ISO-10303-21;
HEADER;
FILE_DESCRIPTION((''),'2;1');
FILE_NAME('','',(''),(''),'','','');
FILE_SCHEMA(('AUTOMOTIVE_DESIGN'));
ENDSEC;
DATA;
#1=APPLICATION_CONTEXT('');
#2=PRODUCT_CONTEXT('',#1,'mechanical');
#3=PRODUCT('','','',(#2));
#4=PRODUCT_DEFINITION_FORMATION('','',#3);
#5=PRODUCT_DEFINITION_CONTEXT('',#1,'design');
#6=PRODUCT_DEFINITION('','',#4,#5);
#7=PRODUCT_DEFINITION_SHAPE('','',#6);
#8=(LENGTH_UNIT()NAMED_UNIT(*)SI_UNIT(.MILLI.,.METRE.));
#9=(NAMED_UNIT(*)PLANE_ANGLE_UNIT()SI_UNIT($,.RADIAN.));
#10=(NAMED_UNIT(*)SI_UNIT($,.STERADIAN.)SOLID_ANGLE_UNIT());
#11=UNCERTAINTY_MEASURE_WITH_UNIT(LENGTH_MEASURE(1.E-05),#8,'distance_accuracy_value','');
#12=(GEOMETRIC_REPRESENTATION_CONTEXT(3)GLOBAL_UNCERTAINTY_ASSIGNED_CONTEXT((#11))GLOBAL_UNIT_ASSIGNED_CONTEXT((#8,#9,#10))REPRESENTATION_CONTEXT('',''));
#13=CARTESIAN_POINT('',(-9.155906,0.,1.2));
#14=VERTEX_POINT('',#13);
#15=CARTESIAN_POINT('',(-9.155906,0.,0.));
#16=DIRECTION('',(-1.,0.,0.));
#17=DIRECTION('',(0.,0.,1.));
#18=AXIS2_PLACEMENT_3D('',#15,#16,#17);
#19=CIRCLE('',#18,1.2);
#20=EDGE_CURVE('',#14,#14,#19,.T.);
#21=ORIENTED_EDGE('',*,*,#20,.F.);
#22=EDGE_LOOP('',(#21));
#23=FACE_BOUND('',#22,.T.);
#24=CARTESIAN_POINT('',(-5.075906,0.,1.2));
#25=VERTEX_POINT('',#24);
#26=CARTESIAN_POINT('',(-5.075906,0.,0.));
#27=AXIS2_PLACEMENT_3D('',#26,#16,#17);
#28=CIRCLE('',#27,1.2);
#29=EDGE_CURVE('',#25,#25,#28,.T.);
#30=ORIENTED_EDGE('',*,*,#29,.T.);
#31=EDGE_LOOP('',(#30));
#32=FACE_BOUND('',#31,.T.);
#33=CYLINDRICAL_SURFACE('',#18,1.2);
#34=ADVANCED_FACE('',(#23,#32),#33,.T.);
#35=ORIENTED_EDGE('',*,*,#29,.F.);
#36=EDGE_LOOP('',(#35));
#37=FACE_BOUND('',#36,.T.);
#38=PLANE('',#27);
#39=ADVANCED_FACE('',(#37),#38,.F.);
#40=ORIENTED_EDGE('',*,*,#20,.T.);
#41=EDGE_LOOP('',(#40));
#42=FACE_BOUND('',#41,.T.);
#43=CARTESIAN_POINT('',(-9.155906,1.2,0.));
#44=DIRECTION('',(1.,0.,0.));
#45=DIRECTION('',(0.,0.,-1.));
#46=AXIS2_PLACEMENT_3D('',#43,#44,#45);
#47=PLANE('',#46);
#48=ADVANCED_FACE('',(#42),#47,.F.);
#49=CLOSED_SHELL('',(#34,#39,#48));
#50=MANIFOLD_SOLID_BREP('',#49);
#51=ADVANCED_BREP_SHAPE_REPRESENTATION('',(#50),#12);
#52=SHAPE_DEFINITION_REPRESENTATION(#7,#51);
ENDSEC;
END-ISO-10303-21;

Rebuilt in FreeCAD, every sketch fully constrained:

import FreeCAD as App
import Part
import Sketcher

V = App.Vector

doc = App.newDocument("Part")
body = doc.addObject("PartDesign::Body", "Body")

sketch1 = body.newObject("Sketcher::SketchObject", "Sketch")
sketch1.AttachmentSupport = (doc.getObject("XY_Plane"), [""])
sketch1.MapMode = "FlatFace"
sketch1.addGeometry([
    Part.LineSegment(V(-9.155906, 1.2, 0), V(-9.155906, 0, 0)),
    Part.LineSegment(V(-9.155906, 0, 0), V(-5.075906, 0, 0)),
    Part.LineSegment(V(-5.075906, 0, 0), V(-5.075906, 1.2, 0)),
    Part.LineSegment(V(-5.075906, 1.2, 0), V(-9.155906, 1.2, 0)),
], False)
sketch1.addConstraint([
    Sketcher.Constraint("Coincident", 0, 2, 1, 1),
    Sketcher.Constraint("Coincident", 1, 2, 2, 1),
    Sketcher.Constraint("Coincident", 2, 2, 3, 1),
    Sketcher.Constraint("Coincident", 3, 2, 0, 1),
    Sketcher.Constraint("Vertical", 0),
    Sketcher.Constraint("Horizontal", 1),
    Sketcher.Constraint("Vertical", 2),
    Sketcher.Constraint("Horizontal", 3),
    Sketcher.Constraint("PointOnObject", 0, 2, -1),
    Sketcher.Constraint("DistanceY", 0, 2, 0, 1, 1.2),
    Sketcher.Constraint("DistanceX", 1, 1, 1, 2, 4.08),
    Sketcher.Constraint("DistanceX", 0, 2, -1, 1, 9.155906),
])
revolution = body.newObject("PartDesign::Revolution", "Revolution")
revolution.Profile = sketch1
revolution.ReferenceAxis = (sketch1, ["H_Axis"])
revolution.Angle = 360

doc.recompute()
